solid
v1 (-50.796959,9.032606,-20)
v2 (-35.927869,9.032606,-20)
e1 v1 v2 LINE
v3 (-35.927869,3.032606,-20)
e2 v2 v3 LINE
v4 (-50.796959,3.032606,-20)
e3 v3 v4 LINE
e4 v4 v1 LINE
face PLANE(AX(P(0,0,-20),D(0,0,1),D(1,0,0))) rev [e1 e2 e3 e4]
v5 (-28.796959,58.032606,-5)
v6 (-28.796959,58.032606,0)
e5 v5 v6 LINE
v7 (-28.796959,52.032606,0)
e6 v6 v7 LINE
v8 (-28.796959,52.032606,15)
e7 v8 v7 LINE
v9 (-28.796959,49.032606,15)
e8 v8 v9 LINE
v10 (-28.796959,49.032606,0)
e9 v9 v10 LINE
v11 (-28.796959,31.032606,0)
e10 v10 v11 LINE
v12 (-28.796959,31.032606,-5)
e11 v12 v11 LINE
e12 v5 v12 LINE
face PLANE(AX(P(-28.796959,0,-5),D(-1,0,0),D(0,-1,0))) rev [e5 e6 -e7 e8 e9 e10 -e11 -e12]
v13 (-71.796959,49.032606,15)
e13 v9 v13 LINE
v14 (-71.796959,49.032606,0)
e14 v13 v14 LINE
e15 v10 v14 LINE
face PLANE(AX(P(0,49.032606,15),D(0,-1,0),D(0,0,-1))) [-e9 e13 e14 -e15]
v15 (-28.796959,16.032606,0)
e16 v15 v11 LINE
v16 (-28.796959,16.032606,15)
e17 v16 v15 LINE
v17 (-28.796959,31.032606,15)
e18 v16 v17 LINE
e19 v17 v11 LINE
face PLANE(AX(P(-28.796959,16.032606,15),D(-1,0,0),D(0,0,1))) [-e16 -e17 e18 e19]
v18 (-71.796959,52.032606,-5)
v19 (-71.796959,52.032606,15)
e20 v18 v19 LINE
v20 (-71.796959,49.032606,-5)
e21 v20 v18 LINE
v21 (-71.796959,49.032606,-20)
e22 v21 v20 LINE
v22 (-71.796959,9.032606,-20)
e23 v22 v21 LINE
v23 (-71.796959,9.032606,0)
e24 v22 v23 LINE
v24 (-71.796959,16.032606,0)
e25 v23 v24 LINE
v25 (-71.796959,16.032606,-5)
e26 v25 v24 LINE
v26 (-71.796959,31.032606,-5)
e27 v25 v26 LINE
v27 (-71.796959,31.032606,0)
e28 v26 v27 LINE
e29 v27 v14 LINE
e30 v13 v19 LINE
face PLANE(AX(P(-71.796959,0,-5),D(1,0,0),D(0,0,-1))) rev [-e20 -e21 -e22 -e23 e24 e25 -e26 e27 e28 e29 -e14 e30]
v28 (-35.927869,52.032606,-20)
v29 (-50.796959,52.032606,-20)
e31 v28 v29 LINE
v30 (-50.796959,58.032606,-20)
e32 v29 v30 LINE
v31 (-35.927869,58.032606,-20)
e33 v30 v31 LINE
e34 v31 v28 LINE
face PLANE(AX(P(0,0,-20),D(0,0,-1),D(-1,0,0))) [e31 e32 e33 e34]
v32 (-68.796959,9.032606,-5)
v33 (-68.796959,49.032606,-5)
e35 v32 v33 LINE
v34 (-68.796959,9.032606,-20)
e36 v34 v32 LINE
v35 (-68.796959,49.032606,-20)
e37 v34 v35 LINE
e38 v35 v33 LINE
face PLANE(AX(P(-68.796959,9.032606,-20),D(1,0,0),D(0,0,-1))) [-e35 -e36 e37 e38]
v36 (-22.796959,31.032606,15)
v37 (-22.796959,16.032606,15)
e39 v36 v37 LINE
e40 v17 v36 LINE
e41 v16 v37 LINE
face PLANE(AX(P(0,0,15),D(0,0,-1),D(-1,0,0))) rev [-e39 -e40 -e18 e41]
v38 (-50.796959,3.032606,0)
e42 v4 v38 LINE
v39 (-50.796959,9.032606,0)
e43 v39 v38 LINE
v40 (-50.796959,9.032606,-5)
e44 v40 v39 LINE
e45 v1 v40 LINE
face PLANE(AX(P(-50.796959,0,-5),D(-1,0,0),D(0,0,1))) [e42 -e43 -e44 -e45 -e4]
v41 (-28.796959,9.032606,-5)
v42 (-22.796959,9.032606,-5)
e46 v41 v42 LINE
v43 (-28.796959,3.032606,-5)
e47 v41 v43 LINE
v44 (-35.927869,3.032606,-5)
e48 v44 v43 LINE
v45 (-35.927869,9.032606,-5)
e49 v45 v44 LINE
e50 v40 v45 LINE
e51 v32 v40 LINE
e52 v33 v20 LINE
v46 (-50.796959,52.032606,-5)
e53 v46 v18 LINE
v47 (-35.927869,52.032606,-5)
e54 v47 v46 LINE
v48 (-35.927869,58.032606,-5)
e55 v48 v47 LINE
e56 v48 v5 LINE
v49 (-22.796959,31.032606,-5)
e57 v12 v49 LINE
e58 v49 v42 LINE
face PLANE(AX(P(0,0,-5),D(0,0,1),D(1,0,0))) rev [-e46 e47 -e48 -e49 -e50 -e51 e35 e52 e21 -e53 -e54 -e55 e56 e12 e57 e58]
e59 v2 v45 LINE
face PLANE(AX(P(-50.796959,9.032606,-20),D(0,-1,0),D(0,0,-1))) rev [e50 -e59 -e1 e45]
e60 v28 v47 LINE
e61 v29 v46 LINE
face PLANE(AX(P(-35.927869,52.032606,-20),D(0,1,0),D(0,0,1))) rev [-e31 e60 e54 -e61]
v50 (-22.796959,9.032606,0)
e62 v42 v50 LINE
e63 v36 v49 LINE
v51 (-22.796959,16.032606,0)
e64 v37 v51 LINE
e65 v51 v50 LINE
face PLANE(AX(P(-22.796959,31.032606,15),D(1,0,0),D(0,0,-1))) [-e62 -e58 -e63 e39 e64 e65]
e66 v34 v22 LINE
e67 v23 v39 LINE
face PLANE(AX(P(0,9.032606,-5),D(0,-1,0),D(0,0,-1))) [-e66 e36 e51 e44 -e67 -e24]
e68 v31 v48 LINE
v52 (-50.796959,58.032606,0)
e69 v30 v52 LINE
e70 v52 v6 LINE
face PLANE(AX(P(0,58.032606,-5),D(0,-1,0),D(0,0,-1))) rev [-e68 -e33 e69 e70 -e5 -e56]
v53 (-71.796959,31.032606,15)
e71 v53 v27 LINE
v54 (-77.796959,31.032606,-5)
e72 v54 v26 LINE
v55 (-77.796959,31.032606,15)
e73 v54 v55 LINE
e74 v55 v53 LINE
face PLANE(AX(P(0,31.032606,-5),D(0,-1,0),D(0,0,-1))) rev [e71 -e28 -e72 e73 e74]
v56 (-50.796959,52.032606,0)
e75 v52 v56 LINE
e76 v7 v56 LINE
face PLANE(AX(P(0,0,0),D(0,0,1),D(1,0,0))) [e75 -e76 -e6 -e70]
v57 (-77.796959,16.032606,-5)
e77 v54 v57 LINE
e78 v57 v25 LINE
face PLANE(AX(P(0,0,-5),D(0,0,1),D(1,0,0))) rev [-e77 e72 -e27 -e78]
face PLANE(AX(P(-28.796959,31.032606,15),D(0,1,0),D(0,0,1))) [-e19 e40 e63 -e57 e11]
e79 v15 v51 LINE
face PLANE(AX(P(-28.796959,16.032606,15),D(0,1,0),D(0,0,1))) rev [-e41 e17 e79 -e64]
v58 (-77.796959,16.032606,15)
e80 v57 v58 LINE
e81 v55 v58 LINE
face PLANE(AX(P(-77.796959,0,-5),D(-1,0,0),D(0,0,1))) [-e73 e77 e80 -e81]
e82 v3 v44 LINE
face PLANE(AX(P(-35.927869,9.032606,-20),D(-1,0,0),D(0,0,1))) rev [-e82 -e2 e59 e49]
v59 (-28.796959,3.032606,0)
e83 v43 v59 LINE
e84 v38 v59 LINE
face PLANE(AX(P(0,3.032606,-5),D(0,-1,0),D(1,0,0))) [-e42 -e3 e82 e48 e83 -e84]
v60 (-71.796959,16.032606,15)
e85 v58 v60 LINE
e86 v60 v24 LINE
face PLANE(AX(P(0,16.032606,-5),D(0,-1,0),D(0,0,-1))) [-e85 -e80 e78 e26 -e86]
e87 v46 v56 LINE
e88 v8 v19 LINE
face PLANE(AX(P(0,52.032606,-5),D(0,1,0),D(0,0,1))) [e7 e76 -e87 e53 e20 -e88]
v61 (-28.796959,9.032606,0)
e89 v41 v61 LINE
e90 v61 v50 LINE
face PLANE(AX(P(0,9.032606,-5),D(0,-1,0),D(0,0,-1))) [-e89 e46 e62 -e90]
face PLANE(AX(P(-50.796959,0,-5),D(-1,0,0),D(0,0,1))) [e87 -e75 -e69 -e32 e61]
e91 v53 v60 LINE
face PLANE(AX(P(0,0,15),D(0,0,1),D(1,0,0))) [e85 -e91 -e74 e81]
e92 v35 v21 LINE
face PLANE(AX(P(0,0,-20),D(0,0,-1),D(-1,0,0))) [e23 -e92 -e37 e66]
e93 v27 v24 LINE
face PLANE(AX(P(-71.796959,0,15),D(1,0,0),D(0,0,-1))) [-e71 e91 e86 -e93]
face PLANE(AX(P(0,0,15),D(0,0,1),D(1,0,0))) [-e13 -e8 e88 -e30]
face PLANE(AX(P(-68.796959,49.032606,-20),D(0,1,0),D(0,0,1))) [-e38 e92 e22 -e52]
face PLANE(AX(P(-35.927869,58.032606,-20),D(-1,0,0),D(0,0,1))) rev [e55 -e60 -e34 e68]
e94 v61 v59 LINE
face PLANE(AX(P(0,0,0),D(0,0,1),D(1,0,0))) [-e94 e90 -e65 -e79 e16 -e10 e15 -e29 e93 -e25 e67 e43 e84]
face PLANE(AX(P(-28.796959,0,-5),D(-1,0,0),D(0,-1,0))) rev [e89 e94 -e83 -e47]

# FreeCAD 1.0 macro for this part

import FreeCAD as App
import Part
import Sketcher
Q = App.Units.Quantity


def add_polygon(sketch, points):
    """Adds a closed chain of lines whose ends are joined by coincident constraints."""
    first, n = sketch.GeometryCount, len(points)
    for a, b in zip(points, points[1:] + points[:1]):
        sketch.addGeometry(Part.LineSegment(App.Vector(*a, 0), App.Vector(*b, 0)), False)
    for i in range(n):
        sketch.addConstraint(Sketcher.Constraint("Coincident", first + i, 2, first + (i + 1) % n, 1))

doc = App.newDocument("Part")
body = doc.addObject("PartDesign::Body", "Body")

# Sketch on XY plane
sketch1 = doc.addObject("Sketcher::SketchObject", "Sketch")
body.addObject(sketch1)
sketch1.AttachmentSupport = (doc.XY_Plane, [""])
sketch1.MapMode = "FlatFace"
add_polygon(sketch1, [(-29, 31), (-29, 16), (-23, 16), (-23, 31)])  # lines 0-3
sketch1.addConstraint([
    Sketcher.Constraint("Vertical", 0),
    Sketcher.Constraint("Horizontal", 1),
    Sketcher.Constraint("Vertical", 2),
    Sketcher.Constraint("Horizontal", 3),
    Sketcher.Constraint("DistanceX", 1, 1, 1, 2, Q("6 mm")),
    Sketcher.Constraint("DistanceY", 0, 2, 0, 1, Q("15 mm")),
    Sketcher.Constraint("DistanceX", 0, 2, -1, 1, Q("28.796959 mm")),
    Sketcher.Constraint("DistanceY", -1, 1, 0, 2, Q("16.032606 mm")),
])
pad1 = doc.addObject("PartDesign::Pad", "Pad")
body.addObject(pad1)
pad1.Profile = sketch1
pad1.Length = 15
body2 = doc.addObject("PartDesign::Body", "Body001")

# Sketch on XY plane
sketch2 = doc.addObject("Sketcher::SketchObject", "Sketch001")
body2.addObject(sketch2)
sketch2.AttachmentSupport = (doc.getObject("XY_Plane001"), [""])
sketch2.MapMode = "FlatFace"
add_polygon(sketch2, [(-78, 31), (-78, 16), (-72, 16), (-72, 31)])  # lines 0-3
sketch2.addConstraint([
    Sketcher.Constraint("Vertical", 0),
    Sketcher.Constraint("Horizontal", 1),
    Sketcher.Constraint("Vertical", 2),
    Sketcher.Constraint("Horizontal", 3),
    Sketcher.Constraint("DistanceX", 1, 1, 1, 2, Q("6 mm")),
    Sketcher.Constraint("DistanceY", 0, 2, 0, 1, Q("15 mm")),
    Sketcher.Constraint("DistanceX", 0, 2, -1, 1, Q("77.796959 mm")),
    Sketcher.Constraint("DistanceY", -1, 1, 0, 2, Q("16.032606 mm")),
])
pad2 = doc.addObject("PartDesign::Pad", "Pad001")
body2.addObject(pad2)
pad2.Profile = sketch2
pad2.Length = 15
body3 = doc.addObject("PartDesign::Body", "Body002")

# Sketch on XY plane
sketch3 = doc.addObject("Sketcher::SketchObject", "Sketch002")
body3.addObject(sketch3)
sketch3.AttachmentSupport = (doc.getObject("XY_Plane002"), [""])
sketch3.MapMode = "FlatFace"
add_polygon(sketch3, [(-71.8, 49), (-28.8, 49), (-28.8, 52), (-71.8, 52)])  # lines 0-3
sketch3.addConstraint([
    Sketcher.Constraint("Horizontal", 0),
    Sketcher.Constraint("Vertical", 1),
    Sketcher.Constraint("Horizontal", 2),
    Sketcher.Constraint("Vertical", 3),
    Sketcher.Constraint("DistanceX", 0, 1, 0, 2, Q("43 mm")),
    Sketcher.Constraint("DistanceY", 1, 1, 1, 2, Q("3 mm")),
    Sketcher.Constraint("DistanceX", 0, 2, -1, 1, Q("28.796959 mm")),
    Sketcher.Constraint("DistanceY", -1, 1, 0, 2, Q("49.032606 mm")),
])
pad3 = doc.addObject("PartDesign::Pad", "Pad002")
body3.addObject(pad3)
pad3.Profile = sketch3
pad3.Length = 15
body.AllowCompound = True
doc.recompute()

boolean = doc.addObject("PartDesign::Boolean", "Boolean")
body.addObject(boolean)
boolean.Type = "Fuse"
boolean.addObjects([body2])
doc.recompute()

boolean2 = doc.addObject("PartDesign::Boolean", "Boolean001")
body.addObject(boolean2)
boolean2.Type = "Fuse"
boolean2.addObjects([body3])

# Sketch on XY plane
sketch4 = doc.addObject("Sketcher::SketchObject", "Sketch003")
body.addObject(sketch4)
sketch4.AttachmentSupport = (doc.XY_Plane, [""])
sketch4.MapMode = "FlatFace"
add_polygon(sketch4, [(-29, 3), (-29, 9), (-23, 9), (-23, 31), (-29, 31), (-29, 58), (-51, 58), (-51, 52), (-72, 52), (-72, 31), (-78, 31), (-78, 16), (-72, 16), (-72, 9), (-51, 9), (-51, 3)])  # lines 0-15
sketch4.addConstraint([
    Sketcher.Constraint("Vertical", 0),
    Sketcher.Constraint("Horizontal", 1),
    Sketcher.Constraint("Vertical", 2),
    Sketcher.Constraint("Horizontal", 3),
    Sketcher.Constraint("Vertical", 4),
    Sketcher.Constraint("Horizontal", 5),
    Sketcher.Constraint("Vertical", 6),
    Sketcher.Constraint("Horizontal", 7),
    Sketcher.Constraint("Vertical", 8),
    Sketcher.Constraint("Horizontal", 9),
    Sketcher.Constraint("Vertical", 10),
    Sketcher.Constraint("Horizontal", 11),
    Sketcher.Constraint("Vertical", 12),
    Sketcher.Constraint("Horizontal", 13),
    Sketcher.Constraint("Vertical", 14),
    Sketcher.Constraint("Horizontal", 15),
    Sketcher.Constraint("Horizontal", 3, 2, 8, 2),
    Sketcher.Constraint("Horizontal", 1, 2, 12, 2),
    Sketcher.Constraint("Vertical", 0, 2, 3, 2),
    Sketcher.Constraint("Vertical", 8, 2, 11, 2),
    Sketcher.Constraint("Vertical", 6, 2, 13, 2),
    Sketcher.Constraint("Equal", 3, 9),
    Sketcher.Constraint("Equal", 11, 0),
    Sketcher.Constraint("Equal", 15, 2),
    Sketcher.Constraint("Equal", 0, 6),
    Sketcher.Constraint("Equal", 13, 8),
    Sketcher.Constraint("DistanceX", 1, 1, 1, 2, Q("6 mm")),
    Sketcher.Constraint("DistanceX", 5, 2, 5, 1, Q("22 mm")),
    Sketcher.Constraint("DistanceX", 7, 2, 7, 1, Q("21 mm")),
    Sketcher.Constraint("DistanceY", 10, 2, 10, 1, Q("15 mm")),
    Sketcher.Constraint("DistanceX", 0, 2, -1, 1, Q("28.796959 mm")),
    Sketcher.Constraint("DistanceY", -1, 1, 0, 2, Q("9.032606 mm")),
])
pad4 = doc.addObject("PartDesign::Pad", "Pad003")
body.addObject(pad4)
pad4.Profile = sketch4
pad4.Length = 5
pad4.Reversed = True

# Sketch on XY plane
sketch5 = doc.addObject("Sketcher::SketchObject", "Sketch004")
body.addObject(sketch5)
sketch5.AttachmentSupport = (doc.XY_Plane, [""])
sketch5.MapMode = "FlatFace"
add_polygon(sketch5, [(-71.8, 49), (-71.8, 9), (-68.8, 9), (-68.8, 49)])  # lines 0-3
sketch5.addConstraint([
    Sketcher.Constraint("Vertical", 0),
    Sketcher.Constraint("Horizontal", 1),
    Sketcher.Constraint("Vertical", 2),
    Sketcher.Constraint("Horizontal", 3),
    Sketcher.Constraint("DistanceX", 1, 1, 1, 2, Q("3 mm")),
    Sketcher.Constraint("DistanceY", 0, 2, 0, 1, Q("40 mm")),
    Sketcher.Constraint("DistanceX", 0, 2, -1, 1, Q("71.796959 mm")),
    Sketcher.Constraint("DistanceY", -1, 1, 0, 2, Q("9.032606 mm")),
])
pad5 = doc.addObject("PartDesign::Pad", "Pad004")
body.addObject(pad5)
pad5.Profile = sketch5
pad5.Length = 20
pad5.Reversed = True

# Sketch on XY plane
sketch6 = doc.addObject("Sketcher::SketchObject", "Sketch005")
body.addObject(sketch6)
sketch6.AttachmentSupport = (doc.XY_Plane, [""])
sketch6.MapMode = "FlatFace"
sketch6.AttachmentOffset = App.Placement(App.Vector(0, 0, -5), App.Rotation())
add_polygon(sketch6, [(-36, 58), (-36, 52), (-51, 52), (-51, 58)])  # lines 0-3
add_polygon(sketch6, [(-36, 9), (-36, 3), (-51, 3), (-51, 9)])  # lines 4-7
sketch6.addConstraint([
    Sketcher.Constraint("Vertical", 0),
    Sketcher.Constraint("Horizontal", 1),
    Sketcher.Constraint("Vertical", 2),
    Sketcher.Constraint("Horizontal", 3),
    Sketcher.Constraint("Vertical", 4),
    Sketcher.Constraint("Horizontal", 5),
    Sketcher.Constraint("Vertical", 6),
    Sketcher.Constraint("Horizontal", 7),
    Sketcher.Constraint("Vertical", 3, 2, 4, 2),
    Sketcher.Constraint("Vertical", 2, 2, 5, 2),
    Sketcher.Constraint("Equal", 2, 4),
    Sketcher.Constraint("DistanceY", 0, 2, 0, 1, Q("6 mm")),
    Sketcher.Constraint("DistanceY", 4, 2, 0, 2, Q("49 mm")),
    Sketcher.Constraint("DistanceX", 1, 2, 1, 1, Q("14.869091 mm")),
    Sketcher.Constraint("DistanceX", 0, 2, -1, 1, Q("35.927869 mm")),
    Sketcher.Constraint("DistanceY", -1, 1, 0, 2, Q("52.032606 mm")),
])
pad6 = doc.addObject("PartDesign::Pad", "Pad005")
body.addObject(pad6)
pad6.Profile = sketch6
pad6.Length = 15
pad6.Reversed = True

doc.recompute()
